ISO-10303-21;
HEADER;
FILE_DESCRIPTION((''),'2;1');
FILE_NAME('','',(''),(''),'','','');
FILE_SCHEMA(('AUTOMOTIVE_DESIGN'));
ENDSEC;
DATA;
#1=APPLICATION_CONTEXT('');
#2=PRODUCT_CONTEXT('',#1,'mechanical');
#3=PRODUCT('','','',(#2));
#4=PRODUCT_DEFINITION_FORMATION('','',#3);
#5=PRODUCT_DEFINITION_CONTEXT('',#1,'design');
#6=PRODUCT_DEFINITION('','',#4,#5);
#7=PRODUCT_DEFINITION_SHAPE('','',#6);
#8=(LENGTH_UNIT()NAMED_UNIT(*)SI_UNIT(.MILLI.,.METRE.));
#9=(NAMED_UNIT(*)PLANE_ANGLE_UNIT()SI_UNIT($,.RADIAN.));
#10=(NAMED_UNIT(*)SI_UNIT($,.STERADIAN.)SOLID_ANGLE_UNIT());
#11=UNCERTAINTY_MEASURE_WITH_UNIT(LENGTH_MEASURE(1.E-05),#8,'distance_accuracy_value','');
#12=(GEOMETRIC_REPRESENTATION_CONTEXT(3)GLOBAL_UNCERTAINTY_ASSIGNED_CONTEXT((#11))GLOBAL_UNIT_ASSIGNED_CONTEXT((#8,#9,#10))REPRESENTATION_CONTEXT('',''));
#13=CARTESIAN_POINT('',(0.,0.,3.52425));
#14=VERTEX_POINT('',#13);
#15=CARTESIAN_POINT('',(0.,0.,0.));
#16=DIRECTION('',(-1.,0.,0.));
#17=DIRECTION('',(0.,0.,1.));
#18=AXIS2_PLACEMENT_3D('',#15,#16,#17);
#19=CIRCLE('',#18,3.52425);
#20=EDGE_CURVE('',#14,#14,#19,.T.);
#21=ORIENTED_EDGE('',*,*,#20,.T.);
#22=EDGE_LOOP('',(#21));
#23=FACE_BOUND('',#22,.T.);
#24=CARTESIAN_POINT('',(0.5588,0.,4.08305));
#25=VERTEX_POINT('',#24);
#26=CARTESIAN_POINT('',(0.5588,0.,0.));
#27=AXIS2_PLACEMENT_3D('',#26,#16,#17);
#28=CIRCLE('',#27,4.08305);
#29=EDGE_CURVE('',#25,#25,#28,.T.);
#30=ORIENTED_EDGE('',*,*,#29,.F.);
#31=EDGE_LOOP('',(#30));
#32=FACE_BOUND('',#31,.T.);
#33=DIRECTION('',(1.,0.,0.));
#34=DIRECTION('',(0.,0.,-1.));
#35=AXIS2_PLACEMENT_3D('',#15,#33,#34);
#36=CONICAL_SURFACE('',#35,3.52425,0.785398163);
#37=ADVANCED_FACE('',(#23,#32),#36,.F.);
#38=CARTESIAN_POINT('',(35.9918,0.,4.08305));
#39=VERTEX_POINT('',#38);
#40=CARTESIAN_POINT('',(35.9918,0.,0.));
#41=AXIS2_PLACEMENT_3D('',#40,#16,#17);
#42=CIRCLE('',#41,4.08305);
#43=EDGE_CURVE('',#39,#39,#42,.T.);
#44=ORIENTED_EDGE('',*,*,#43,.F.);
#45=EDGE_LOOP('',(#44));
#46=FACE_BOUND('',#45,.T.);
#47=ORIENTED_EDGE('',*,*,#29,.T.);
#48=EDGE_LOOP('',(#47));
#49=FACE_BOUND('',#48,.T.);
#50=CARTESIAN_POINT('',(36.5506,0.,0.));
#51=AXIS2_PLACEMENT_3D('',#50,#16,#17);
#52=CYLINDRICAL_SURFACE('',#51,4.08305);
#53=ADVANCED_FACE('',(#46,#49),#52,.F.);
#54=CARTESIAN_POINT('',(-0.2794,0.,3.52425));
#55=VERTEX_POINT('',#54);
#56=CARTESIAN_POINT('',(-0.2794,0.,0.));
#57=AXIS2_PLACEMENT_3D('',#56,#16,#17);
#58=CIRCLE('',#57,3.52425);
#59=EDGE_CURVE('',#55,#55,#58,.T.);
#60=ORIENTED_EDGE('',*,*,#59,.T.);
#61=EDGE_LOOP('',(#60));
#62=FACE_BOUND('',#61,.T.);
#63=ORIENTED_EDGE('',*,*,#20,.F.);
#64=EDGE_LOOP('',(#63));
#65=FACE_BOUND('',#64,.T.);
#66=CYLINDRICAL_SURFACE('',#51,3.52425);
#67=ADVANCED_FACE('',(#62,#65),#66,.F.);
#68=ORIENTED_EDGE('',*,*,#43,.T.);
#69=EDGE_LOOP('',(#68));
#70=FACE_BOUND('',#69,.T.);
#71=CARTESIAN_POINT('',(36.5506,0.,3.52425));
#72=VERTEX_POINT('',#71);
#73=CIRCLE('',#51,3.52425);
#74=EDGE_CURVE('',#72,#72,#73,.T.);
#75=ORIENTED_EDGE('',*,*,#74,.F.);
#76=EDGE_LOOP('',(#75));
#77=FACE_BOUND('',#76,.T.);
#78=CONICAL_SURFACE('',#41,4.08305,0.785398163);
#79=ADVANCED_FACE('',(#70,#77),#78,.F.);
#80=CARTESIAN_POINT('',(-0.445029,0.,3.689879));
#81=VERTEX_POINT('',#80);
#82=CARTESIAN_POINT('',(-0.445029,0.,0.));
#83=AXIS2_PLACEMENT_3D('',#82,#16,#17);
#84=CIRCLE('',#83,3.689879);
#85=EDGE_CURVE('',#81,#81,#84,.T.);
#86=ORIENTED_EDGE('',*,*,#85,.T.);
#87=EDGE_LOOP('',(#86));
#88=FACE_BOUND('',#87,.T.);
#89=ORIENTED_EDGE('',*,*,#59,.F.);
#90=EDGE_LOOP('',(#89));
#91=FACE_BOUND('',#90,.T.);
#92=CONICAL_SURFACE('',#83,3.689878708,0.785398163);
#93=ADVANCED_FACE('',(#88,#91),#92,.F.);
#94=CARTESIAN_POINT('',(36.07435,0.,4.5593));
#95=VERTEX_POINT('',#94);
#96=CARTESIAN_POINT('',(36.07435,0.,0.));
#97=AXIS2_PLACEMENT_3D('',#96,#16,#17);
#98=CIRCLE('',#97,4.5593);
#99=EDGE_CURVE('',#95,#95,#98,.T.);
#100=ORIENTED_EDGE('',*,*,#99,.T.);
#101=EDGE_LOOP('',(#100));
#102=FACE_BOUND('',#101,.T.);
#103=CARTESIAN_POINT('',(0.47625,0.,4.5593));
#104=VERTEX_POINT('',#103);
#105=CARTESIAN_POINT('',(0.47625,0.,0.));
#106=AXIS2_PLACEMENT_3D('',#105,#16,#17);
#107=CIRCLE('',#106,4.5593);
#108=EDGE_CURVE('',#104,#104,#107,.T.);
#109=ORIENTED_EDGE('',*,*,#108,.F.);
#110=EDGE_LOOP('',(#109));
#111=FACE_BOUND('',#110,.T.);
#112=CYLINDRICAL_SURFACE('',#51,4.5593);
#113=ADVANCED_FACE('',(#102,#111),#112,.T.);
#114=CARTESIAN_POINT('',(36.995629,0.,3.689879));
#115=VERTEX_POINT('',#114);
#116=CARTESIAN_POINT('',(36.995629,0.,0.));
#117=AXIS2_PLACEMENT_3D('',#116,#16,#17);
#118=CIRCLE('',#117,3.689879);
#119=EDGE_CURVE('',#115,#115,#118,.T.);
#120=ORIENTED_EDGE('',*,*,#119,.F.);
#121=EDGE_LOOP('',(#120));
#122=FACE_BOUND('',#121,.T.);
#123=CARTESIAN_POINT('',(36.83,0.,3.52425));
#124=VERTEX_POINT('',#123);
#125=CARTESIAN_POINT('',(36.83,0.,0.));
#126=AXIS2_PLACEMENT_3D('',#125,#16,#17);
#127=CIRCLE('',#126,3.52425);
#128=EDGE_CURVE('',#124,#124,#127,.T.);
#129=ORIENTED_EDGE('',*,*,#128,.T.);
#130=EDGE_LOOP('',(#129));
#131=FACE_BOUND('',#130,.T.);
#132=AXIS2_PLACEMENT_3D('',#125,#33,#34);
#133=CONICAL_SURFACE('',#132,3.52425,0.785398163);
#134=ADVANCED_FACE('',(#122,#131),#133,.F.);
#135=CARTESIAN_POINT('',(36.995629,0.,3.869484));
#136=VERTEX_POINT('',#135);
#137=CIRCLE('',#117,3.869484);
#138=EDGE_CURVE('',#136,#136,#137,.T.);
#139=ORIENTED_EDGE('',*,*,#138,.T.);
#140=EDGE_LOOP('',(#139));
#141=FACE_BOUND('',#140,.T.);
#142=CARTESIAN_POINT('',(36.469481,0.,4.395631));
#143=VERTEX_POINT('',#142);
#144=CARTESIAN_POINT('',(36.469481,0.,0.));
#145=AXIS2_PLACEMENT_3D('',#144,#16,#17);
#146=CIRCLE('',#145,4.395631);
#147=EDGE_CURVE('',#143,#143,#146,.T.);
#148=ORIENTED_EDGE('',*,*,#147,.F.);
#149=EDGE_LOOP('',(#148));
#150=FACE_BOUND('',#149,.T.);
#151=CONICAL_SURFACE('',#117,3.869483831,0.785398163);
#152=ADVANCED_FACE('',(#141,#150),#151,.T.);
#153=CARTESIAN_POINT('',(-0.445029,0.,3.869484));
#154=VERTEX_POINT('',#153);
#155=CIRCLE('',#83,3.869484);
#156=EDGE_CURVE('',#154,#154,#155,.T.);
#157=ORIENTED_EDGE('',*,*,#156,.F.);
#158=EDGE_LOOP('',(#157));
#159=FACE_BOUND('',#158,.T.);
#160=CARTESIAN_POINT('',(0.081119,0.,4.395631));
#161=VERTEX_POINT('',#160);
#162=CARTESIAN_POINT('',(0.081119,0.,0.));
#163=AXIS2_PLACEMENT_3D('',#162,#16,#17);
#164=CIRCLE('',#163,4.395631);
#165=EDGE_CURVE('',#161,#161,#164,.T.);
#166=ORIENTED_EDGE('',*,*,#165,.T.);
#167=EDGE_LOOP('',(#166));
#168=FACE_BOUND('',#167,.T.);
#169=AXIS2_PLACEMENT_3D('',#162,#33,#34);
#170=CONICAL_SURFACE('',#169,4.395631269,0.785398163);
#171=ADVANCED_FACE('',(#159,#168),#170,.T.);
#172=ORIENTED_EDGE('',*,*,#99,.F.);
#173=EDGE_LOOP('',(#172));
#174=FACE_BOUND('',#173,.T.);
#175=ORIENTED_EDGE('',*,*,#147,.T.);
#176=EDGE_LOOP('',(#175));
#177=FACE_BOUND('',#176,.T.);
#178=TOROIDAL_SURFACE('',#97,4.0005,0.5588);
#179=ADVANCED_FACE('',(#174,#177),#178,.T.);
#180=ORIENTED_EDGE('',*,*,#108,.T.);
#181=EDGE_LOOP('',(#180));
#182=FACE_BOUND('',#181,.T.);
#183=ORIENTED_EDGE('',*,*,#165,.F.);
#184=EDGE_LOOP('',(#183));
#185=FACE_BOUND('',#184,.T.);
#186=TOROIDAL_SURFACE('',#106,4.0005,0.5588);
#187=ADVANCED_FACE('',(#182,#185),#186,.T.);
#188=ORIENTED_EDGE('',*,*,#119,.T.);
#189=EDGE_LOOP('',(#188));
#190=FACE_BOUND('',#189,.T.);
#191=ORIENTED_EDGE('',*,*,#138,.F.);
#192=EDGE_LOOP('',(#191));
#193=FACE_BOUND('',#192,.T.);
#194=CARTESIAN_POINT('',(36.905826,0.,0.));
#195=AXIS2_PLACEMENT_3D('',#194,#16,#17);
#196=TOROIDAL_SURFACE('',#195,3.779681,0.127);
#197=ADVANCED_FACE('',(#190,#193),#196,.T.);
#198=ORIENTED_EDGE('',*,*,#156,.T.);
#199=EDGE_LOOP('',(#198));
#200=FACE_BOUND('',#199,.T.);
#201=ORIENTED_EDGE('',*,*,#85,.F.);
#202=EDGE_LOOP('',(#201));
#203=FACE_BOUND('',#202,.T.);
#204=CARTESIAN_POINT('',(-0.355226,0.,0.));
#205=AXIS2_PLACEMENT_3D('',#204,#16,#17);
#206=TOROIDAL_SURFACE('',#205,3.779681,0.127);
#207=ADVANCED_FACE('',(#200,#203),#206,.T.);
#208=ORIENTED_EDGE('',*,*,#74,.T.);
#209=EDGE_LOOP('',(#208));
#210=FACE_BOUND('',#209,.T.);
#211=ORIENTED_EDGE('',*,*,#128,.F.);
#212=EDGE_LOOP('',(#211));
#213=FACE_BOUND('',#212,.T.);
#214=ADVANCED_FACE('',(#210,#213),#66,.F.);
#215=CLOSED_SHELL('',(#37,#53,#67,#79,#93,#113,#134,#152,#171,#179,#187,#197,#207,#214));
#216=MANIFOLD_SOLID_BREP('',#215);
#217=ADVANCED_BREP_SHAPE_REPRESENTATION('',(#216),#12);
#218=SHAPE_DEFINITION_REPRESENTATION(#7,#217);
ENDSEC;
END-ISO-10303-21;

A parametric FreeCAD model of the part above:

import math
import FreeCAD as App
import Part
import Sketcher
Q = App.Units.Quantity

doc = App.newDocument("Part")
params = doc.addObject("Spreadsheet::Sheet", "Params")
for row, (alias, value) in enumerate([
    ("sketch1_radius", "0.005 in"),
    ("sketch1_radius2", "0.022 in"),
    ("sketch1_width", "0.011 in"),
    ("sketch1_width2", "1.395 in"),
    ("revolution_angle", "360 deg"),
], start=1):
    params.set(f"A{row}", alias)
    params.set(f"B{row}", "=" + value)
    params.setAlias(f"B{row}", alias)

body = doc.addObject("PartDesign::Body", "Body")

# Sketch on XY plane
sketch1 = doc.addObject("Sketcher::SketchObject", "Sketch")
body.addObject(sketch1)
sketch1.AttachmentSupport = (doc.XY_Plane, [""])
sketch1.MapMode = "FlatFace"
sketch1.addGeometry(Part.LineSegment(App.Vector(-0.45, 3.69, 0), App.Vector(-0.28, 3.52, 0)), False)
sketch1.addGeometry(Part.LineSegment(App.Vector(-0.28, 3.52, 0), App.Vector(0, 3.52, 0)), False)
sketch1.addGeometry(Part.LineSegment(App.Vector(0, 3.52, 0), App.Vector(0.56, 4.08, 0)), False)
sketch1.addGeometry(Part.LineSegment(App.Vector(0.56, 4.08, 0), App.Vector(35.99, 4.08, 0)), False)
sketch1.addGeometry(Part.LineSegment(App.Vector(35.99, 4.08, 0), App.Vector(36.55, 3.52, 0)), False)
sketch1.addGeometry(Part.LineSegment(App.Vector(36.55, 3.52, 0), App.Vector(36.83, 3.52, 0)), False)
sketch1.addGeometry(Part.LineSegment(App.Vector(36.83, 3.52, 0), App.Vector(37, 3.69, 0)), False)
sketch1.addGeometry(Part.ArcOfCircle(Part.Circle(App.Vector(36.91, 3.78, 0), App.Vector(0, 0, 1), 0.13), math.radians(-45), math.radians(45)), False)
sketch1.addGeometry(Part.LineSegment(App.Vector(37, 3.87, 0), App.Vector(36.47, 4.4, 0)), False)
sketch1.addGeometry(Part.ArcOfCircle(Part.Circle(App.Vector(36.07, 4, 0), App.Vector(0, 0, 1), 0.56), math.radians(45), math.radians(90)), False)
sketch1.addGeometry(Part.LineSegment(App.Vector(36.07, 4.56, 0), App.Vector(0.48, 4.56, 0)), False)
sketch1.addGeometry(Part.ArcOfCircle(Part.Circle(App.Vector(0.48, 4, 0), App.Vector(0, 0, 1), 0.56), math.radians(90), math.radians(135)), False)
sketch1.addGeometry(Part.LineSegment(App.Vector(0.08, 4.4, 0), App.Vector(-0.45, 3.87, 0)), False)
sketch1.addGeometry(Part.ArcOfCircle(Part.Circle(App.Vector(-0.36, 3.78, 0), App.Vector(0, 0, 1), 0.13), math.radians(135), math.radians(225)), False)
sketch1.addConstraint(Sketcher.Constraint("Coincident", 0, 2, 1, 1))
sketch1.addConstraint(Sketcher.Constraint("Coincident", 1, 2, 2, 1))
sketch1.addConstraint(Sketcher.Constraint("Coincident", 2, 2, 3, 1))
sketch1.addConstraint(Sketcher.Constraint("Coincident", 3, 2, 4, 1))
sketch1.addConstraint(Sketcher.Constraint("Coincident", 4, 2, 5, 1))
sketch1.addConstraint(Sketcher.Constraint("Coincident", 5, 2, 6, 1))
sketch1.addConstraint(Sketcher.Constraint("Tangent", 6, 2, 7, 1))
sketch1.addConstraint(Sketcher.Constraint("Tangent", 7, 2, 8, 1))
sketch1.addConstraint(Sketcher.Constraint("Tangent", 8, 2, 9, 1))
sketch1.addConstraint(Sketcher.Constraint("Tangent", 9, 2, 10, 1))
sketch1.addConstraint(Sketcher.Constraint("Tangent", 10, 2, 11, 1))
sketch1.addConstraint(Sketcher.Constraint("Tangent", 11, 2, 12, 1))
sketch1.addConstraint(Sketcher.Constraint("Tangent", 12, 2, 13, 1))
sketch1.addConstraint(Sketcher.Constraint("Tangent", 13, 2, 0, 1))
sketch1.addConstraint(Sketcher.Constraint("Horizontal", 1))
sketch1.addConstraint(Sketcher.Constraint("Horizontal", 3))
sketch1.addConstraint(Sketcher.Constraint("Horizontal", 5))
sketch1.addConstraint(Sketcher.Constraint("Horizontal", 10))
sketch1.addConstraint(Sketcher.Constraint("Equal", 9, 11))
sketch1.addConstraint(Sketcher.Constraint("Equal", 7, 13))
sketch1.addConstraint(Sketcher.Constraint("PointOnObject", 1, 2, -2))
sketch1.addConstraint(Sketcher.Constraint("Perpendicular", 0, 2))
sketch1.addConstraint(Sketcher.Constraint("Perpendicular", 2, 4))
sketch1.addConstraint(Sketcher.Constraint("Perpendicular", 4, 6))
sketch1.addConstraint(Sketcher.Constraint("Perpendicular", 6, 8))
sketch1.addConstraint(Sketcher.Constraint("Perpendicular", 8, 12))
sketch1.addConstraint(Sketcher.Constraint("Horizontal", 7, 3, 13, 3))
sketch1.addConstraint(Sketcher.Constraint("Horizontal", 1, 2, 4, 2))
sketch1.addConstraint(Sketcher.Constraint("Horizontal", 8, 2, 11, 2))
sketch1.addConstraint(Sketcher.Constraint("Equal", 1, 5))
sketch1.addConstraint(Sketcher.Constraint("Radius", 7, Q("0.005 in")))
sketch1.addConstraint(Sketcher.Constraint("Radius", 9, Q("0.022 in")))
sketch1.addConstraint(Sketcher.Constraint("DistanceX", 1, 1, 1, 2, Q("0.011 in")))
sketch1.addConstraint(Sketcher.Constraint("DistanceX", 3, 1, 3, 2, Q("1.395 in")))
sketch1.addConstraint(Sketcher.Constraint("DistanceX", -1, 1, 5, 2, Q("1.45 in")))
sketch1.addConstraint(Sketcher.Constraint("DistanceX", 10, 2, 10, 1, Q("1.4015 in")))
sketch1.addConstraint(Sketcher.Constraint("DistanceY", -1, 1, 9, 3, Q("0.1575 in")))
sketch1.addConstraint(Sketcher.Constraint("DistanceY", -1, 1, 7, 3, Q("3.779681 mm")))
sketch1.setExpression("Constraints[30]", "Params.sketch1_radius")
sketch1.setExpression("Constraints[31]", "Params.sketch1_radius2")
sketch1.setExpression("Constraints[32]", "Params.sketch1_width")
sketch1.setExpression("Constraints[33]", "Params.sketch1_width2")
revolution = doc.addObject("PartDesign::Revolution", "Revolution")
body.addObject(revolution)
revolution.Profile = sketch1
revolution.ReferenceAxis = (sketch1, ["H_Axis"])
revolution.setExpression("Angle", "Params.revolution_angle")

doc.recompute()
